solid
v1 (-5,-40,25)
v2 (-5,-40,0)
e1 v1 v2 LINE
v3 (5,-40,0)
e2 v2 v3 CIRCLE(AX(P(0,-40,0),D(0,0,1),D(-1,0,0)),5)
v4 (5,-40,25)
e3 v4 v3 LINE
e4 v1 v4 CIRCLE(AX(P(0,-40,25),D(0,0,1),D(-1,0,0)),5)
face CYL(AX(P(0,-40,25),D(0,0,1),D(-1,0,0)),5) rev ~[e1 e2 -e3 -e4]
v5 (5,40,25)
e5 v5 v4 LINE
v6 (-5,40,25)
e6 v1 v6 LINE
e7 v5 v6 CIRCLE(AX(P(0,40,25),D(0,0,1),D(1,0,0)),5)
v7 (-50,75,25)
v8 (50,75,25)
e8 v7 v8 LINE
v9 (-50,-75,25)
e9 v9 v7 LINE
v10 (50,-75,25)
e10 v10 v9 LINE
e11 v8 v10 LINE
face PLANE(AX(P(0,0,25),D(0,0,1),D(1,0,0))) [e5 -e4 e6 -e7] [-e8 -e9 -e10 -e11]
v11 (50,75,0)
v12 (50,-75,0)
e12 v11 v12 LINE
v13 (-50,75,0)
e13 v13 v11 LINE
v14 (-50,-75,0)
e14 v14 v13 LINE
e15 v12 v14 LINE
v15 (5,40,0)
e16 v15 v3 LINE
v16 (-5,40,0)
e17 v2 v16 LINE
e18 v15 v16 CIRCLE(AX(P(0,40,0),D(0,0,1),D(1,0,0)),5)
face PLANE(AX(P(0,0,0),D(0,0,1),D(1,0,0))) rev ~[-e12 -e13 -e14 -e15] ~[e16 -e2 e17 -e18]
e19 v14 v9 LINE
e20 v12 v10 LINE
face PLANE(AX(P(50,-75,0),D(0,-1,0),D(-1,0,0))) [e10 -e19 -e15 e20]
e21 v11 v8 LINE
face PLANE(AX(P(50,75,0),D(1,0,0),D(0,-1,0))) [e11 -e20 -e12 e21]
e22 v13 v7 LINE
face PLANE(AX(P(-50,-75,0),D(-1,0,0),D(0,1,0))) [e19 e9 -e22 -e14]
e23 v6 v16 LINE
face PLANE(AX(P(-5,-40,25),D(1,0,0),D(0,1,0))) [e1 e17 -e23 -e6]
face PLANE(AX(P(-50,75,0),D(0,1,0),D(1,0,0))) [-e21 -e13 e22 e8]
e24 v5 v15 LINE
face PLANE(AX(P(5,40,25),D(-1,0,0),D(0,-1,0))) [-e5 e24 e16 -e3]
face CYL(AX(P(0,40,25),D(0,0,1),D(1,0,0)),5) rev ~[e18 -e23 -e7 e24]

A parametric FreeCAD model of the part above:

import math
import FreeCAD as App
import Part
import Sketcher


def add_polygon(sketch, points):
    """Adds a closed chain of lines whose ends are joined by coincident constraints."""
    first, n = sketch.GeometryCount, len(points)
    for a, b in zip(points, points[1:] + points[:1]):
        sketch.addGeometry(Part.LineSegment(App.Vector(*a, 0), App.Vector(*b, 0)), False)
    for i in range(n):
        sketch.addConstraint(Sketcher.Constraint("Coincident", first + i, 2, first + (i + 1) % n, 1))

doc = App.newDocument("Part")
body = doc.addObject("PartDesign::Body", "Body")

# Sketch on XY plane
sketch1 = body.newObject("Sketcher::SketchObject", "Sketch")
sketch1.AttachmentSupport = (doc.getObject("XY_Plane"), [""])
sketch1.MapMode = "FlatFace"
add_polygon(sketch1, [(50, 75), (-50, 75), (-50, -75), (50, -75)])  # lines 0-3
sketch1.addConstraint([
    Sketcher.Constraint("Horizontal", 0),
    Sketcher.Constraint("Vertical", 1),
    Sketcher.Constraint("Horizontal", 2),
    Sketcher.Constraint("Vertical", 3),
    Sketcher.Constraint("Symmetric", 0, 2, 2, 2, -1, 1),
    Sketcher.Constraint("DistanceX", 0, 2, 0, 1, 100.0),
    Sketcher.Constraint("DistanceY", 1, 2, 1, 1, 150.0),
])
pad1 = body.newObject("PartDesign::Pad", "Pad")
pad1.Profile = sketch1
pad1.Length = 25

# Sketch on XY plane
sketch2 = body.newObject("Sketcher::SketchObject", "Sketch001")
sketch2.AttachmentSupport = (doc.getObject("XY_Plane"), [""])
sketch2.MapMode = "FlatFace"
sketch2.AttachmentOffset = App.Placement(App.Vector(0, 0, 25), App.Rotation())
sketch2.addGeometry([
    Part.LineSegment(App.Vector(5, -40, 0), App.Vector(5, 40, 0)),
    Part.ArcOfCircle(Part.Circle(App.Vector(0, 40, 0), App.Vector(0, 0, 1), 5), math.radians(0), math.radians(180)),
    Part.LineSegment(App.Vector(-5, 40, 0), App.Vector(-5, -40, 0)),
    Part.ArcOfCircle(Part.Circle(App.Vector(0, -40, 0), App.Vector(0, 0, 1), 5), math.radians(180), math.radians(360)),
], False)
sketch2.addConstraint([
    Sketcher.Constraint("Tangent", 0, 2, 1, 1),
    Sketcher.Constraint("Tangent", 1, 2, 2, 1),
    Sketcher.Constraint("Tangent", 2, 2, 3, 1),
    Sketcher.Constraint("Tangent", 3, 2, 0, 1),
    Sketcher.Constraint("Vertical", 0),
    Sketcher.Constraint("Vertical", 2),
    Sketcher.Constraint("Symmetric", 1, 3, 3, 3, -1, 1),
    Sketcher.Constraint("Radius", 1, 5.0),
    Sketcher.Constraint("DistanceY", 0, 1, 0, 2, 80.0),
])
pocket1 = body.newObject("PartDesign::Pocket", "Pocket")
pocket1.Profile = sketch2
pocket1.Type = "ThroughAll"

doc.recompute()
